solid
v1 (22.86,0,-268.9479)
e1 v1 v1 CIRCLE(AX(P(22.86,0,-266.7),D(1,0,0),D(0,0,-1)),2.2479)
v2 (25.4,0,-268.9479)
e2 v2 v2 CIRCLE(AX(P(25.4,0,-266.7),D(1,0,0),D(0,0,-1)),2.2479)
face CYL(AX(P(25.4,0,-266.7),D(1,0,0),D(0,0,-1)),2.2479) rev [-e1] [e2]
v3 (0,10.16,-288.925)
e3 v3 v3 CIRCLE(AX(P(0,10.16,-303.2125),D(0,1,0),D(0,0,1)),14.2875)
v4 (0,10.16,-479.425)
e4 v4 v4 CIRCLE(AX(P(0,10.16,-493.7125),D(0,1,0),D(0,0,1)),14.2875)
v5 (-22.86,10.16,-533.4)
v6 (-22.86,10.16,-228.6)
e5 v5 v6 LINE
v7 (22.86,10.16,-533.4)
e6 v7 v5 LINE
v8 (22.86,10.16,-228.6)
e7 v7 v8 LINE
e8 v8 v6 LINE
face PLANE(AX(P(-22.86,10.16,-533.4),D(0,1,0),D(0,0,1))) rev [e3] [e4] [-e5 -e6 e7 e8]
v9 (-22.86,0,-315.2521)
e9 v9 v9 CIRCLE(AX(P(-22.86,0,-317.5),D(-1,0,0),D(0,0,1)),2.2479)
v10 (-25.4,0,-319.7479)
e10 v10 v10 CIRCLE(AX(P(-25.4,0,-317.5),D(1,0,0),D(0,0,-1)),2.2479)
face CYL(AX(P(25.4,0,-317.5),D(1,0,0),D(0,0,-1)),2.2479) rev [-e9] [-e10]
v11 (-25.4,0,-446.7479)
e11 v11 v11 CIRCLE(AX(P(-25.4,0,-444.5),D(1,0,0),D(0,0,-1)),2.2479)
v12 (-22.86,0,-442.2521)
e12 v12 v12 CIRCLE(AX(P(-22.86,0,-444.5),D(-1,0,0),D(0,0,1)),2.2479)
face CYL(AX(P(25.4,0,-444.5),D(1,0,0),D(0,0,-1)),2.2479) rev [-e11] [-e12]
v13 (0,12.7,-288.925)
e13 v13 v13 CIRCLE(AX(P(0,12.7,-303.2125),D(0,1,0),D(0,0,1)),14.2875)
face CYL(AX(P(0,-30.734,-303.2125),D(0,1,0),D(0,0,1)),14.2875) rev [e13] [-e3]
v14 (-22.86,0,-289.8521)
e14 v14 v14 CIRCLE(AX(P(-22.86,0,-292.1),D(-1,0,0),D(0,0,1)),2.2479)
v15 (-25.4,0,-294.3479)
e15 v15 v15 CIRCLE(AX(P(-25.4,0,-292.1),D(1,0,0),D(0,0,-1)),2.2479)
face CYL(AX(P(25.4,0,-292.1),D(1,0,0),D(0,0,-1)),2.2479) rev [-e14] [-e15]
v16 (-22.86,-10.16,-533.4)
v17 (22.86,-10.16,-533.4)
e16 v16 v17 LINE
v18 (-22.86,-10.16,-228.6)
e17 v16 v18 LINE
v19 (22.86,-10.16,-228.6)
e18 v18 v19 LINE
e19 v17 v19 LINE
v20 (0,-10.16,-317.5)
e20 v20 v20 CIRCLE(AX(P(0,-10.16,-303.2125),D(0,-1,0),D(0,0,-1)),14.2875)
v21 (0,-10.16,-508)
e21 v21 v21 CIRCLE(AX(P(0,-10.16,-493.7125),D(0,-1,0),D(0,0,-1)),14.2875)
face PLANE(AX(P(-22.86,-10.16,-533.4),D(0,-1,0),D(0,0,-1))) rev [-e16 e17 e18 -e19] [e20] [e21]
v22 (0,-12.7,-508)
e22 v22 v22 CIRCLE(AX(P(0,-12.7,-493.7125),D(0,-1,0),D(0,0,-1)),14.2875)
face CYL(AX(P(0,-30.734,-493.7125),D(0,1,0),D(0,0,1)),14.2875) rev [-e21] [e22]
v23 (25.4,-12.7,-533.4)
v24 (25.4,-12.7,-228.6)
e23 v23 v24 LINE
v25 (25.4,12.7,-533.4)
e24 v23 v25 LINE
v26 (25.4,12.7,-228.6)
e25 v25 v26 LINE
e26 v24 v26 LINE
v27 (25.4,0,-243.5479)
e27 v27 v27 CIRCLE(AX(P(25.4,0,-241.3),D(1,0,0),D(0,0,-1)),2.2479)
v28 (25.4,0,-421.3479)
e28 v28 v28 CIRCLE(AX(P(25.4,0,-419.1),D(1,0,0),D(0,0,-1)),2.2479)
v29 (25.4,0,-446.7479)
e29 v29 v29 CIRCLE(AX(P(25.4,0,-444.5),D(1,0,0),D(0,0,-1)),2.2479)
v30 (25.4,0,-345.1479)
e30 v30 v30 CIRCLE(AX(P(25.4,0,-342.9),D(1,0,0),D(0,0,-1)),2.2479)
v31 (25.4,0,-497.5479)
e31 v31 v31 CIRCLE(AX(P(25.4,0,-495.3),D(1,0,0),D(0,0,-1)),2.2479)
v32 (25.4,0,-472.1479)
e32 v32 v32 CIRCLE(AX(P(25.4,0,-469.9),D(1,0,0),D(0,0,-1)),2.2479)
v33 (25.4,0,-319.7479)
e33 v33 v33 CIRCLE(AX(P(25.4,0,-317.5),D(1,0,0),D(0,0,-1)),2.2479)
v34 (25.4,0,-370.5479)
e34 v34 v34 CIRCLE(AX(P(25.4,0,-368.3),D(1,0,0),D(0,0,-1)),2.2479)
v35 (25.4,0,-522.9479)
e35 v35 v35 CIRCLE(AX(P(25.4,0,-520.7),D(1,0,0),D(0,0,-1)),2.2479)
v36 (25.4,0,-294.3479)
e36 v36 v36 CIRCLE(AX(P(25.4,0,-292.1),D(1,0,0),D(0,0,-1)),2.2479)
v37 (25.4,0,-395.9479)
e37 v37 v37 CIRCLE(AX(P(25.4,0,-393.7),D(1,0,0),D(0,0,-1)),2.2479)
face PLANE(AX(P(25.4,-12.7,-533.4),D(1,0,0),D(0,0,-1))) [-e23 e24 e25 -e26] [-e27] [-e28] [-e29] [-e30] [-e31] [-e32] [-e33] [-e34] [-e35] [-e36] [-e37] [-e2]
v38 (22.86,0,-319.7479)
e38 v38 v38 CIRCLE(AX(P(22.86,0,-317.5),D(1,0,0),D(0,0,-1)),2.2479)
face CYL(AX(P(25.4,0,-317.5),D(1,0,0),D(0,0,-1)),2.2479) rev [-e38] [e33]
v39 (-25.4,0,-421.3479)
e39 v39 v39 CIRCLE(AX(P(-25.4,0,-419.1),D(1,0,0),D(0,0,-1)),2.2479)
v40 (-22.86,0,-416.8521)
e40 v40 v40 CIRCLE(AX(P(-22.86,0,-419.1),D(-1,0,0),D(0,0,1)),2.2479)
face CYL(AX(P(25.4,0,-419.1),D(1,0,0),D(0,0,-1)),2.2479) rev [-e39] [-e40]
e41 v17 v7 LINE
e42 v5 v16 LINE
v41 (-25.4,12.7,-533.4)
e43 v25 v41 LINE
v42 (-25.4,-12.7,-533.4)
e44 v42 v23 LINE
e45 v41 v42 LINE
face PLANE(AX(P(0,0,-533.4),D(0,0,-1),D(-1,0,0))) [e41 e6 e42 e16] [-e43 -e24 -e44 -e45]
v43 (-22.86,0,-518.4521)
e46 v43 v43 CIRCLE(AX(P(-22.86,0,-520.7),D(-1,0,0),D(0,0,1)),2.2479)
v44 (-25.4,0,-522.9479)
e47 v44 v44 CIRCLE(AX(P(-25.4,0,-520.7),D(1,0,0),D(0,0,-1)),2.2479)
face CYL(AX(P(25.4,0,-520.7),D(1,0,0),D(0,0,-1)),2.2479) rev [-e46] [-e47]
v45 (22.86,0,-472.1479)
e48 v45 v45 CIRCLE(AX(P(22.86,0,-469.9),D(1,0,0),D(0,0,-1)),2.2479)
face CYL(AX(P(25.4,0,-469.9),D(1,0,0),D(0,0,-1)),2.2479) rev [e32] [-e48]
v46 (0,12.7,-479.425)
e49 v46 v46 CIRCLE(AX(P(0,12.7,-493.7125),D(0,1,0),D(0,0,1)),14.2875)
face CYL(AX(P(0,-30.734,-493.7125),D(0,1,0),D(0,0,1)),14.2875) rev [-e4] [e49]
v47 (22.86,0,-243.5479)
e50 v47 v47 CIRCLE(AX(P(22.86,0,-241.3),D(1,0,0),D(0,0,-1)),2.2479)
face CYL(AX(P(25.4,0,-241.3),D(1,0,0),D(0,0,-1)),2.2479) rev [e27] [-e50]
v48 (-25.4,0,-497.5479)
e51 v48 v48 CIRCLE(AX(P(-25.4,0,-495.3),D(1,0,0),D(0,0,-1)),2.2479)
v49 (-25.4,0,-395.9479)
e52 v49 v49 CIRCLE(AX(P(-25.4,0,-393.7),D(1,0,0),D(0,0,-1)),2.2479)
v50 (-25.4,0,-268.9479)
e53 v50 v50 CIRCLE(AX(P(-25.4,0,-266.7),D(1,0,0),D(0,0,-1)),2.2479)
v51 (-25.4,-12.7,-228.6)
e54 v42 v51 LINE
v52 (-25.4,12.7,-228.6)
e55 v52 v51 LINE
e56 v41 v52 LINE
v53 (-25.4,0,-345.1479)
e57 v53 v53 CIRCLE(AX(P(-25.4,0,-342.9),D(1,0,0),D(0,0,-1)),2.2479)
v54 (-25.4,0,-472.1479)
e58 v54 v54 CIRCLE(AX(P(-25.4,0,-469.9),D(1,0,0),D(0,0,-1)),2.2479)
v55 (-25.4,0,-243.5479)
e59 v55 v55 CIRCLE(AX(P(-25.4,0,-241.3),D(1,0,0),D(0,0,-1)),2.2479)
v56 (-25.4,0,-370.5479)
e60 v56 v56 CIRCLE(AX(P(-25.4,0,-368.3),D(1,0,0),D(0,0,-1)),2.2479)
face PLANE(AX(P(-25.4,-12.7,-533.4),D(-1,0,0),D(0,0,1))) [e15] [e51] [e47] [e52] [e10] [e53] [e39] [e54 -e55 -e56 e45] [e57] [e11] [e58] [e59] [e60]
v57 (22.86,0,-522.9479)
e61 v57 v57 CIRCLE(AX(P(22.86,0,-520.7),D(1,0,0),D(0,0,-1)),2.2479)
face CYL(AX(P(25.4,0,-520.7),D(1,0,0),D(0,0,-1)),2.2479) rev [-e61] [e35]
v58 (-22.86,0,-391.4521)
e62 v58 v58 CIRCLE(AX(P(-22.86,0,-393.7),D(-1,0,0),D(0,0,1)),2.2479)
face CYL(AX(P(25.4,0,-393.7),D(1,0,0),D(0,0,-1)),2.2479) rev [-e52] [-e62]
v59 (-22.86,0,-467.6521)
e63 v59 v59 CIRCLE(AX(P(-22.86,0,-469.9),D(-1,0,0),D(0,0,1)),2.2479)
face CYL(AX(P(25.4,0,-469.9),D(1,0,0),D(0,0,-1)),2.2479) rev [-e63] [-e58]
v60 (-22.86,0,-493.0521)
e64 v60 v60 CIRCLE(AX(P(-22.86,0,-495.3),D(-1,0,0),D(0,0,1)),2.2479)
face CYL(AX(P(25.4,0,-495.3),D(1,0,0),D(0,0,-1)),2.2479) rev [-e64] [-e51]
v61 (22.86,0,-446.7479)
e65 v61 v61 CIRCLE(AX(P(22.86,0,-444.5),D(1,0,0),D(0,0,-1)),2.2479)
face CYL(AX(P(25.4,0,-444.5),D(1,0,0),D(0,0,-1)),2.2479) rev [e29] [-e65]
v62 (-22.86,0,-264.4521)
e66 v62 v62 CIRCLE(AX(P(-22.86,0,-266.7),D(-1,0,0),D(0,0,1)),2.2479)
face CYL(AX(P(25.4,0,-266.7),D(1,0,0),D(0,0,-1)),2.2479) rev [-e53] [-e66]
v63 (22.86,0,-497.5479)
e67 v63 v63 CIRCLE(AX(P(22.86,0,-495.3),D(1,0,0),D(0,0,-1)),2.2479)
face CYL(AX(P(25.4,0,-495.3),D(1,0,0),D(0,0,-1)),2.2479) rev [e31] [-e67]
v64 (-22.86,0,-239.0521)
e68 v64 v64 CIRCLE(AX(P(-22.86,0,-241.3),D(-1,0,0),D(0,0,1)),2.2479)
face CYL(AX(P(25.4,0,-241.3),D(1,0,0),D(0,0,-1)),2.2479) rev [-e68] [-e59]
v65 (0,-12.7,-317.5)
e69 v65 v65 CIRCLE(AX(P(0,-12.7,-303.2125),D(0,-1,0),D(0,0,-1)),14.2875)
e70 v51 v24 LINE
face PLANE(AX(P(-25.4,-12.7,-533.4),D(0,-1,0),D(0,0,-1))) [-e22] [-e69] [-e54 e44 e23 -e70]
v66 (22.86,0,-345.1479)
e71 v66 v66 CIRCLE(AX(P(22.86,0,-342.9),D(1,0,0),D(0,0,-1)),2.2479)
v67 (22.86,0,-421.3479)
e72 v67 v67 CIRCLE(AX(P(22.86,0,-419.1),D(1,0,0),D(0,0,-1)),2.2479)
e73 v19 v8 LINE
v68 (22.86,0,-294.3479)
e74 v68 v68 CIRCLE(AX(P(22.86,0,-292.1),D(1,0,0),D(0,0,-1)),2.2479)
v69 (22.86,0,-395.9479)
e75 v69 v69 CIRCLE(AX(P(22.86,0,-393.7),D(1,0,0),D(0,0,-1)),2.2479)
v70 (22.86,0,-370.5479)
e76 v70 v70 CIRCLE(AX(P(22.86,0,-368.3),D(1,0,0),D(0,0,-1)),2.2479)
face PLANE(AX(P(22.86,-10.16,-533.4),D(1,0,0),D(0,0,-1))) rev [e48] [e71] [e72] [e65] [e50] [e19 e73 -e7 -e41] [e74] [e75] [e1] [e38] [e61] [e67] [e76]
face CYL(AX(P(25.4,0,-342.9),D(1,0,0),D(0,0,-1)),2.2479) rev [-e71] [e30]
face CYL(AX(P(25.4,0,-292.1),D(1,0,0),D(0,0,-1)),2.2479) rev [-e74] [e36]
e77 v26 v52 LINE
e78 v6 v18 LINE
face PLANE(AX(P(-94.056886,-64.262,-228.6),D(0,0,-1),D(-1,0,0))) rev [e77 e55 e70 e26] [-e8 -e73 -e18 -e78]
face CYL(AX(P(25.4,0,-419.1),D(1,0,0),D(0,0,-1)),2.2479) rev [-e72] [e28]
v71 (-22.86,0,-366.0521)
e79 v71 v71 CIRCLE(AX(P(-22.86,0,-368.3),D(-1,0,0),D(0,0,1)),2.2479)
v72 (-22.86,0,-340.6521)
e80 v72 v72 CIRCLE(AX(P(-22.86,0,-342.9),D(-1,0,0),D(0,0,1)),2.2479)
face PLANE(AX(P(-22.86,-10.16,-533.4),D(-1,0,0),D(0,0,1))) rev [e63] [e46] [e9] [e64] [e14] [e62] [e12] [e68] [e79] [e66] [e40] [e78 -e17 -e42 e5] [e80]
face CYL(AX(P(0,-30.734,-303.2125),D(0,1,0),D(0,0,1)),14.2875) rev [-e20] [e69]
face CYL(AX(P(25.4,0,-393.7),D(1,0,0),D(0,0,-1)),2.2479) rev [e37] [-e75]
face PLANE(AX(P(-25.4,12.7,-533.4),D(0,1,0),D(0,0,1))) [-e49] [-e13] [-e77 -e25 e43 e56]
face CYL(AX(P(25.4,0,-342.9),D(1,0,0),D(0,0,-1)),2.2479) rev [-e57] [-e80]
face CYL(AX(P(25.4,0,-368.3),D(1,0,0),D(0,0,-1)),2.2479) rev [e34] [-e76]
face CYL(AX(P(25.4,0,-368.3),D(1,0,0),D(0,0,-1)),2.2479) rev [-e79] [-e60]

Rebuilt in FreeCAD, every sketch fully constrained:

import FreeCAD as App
import Part
import Sketcher
from FreeCAD import Vector
Q = App.Units.Quantity

doc = App.newDocument("Part")
body = doc.addObject("PartDesign::Body", "Body")

# Sketch on XY plane
sketch1 = body.newObject("Sketcher::SketchObject", "Sketch")
sketch1.AttachmentSupport = (doc.getObject("XY_Plane"), [""])
sketch1.MapMode = "FlatFace"
sketch1.addGeometry([
    Part.LineSegment(Vector(-25, 13, 0), Vector(-25, -13, 0)),  # 0
    Part.LineSegment(Vector(-25, -13, 0), Vector(25, -13, 0)),  # 1
    Part.LineSegment(Vector(25, -13, 0), Vector(25, 13, 0)),  # 2
    Part.LineSegment(Vector(25, 13, 0), Vector(-25, 13, 0)),  # 3
    Part.LineSegment(Vector(23, -10, 0), Vector(-23, -10, 0)),  # 4
    Part.LineSegment(Vector(-23, -10, 0), Vector(-23, 10, 0)),  # 5
    Part.LineSegment(Vector(-23, 10, 0), Vector(23, 10, 0)),  # 6
    Part.LineSegment(Vector(23, 10, 0), Vector(23, -10, 0)),  # 7
], False)
sketch1.addConstraint([
    Sketcher.Constraint("Coincident", 0, 2, 1, 1),
    Sketcher.Constraint("Coincident", 1, 2, 2, 1),
    Sketcher.Constraint("Coincident", 2, 2, 3, 1),
    Sketcher.Constraint("Coincident", 3, 2, 0, 1),
    Sketcher.Constraint("Coincident", 4, 2, 5, 1),
    Sketcher.Constraint("Coincident", 5, 2, 6, 1),
    Sketcher.Constraint("Coincident", 6, 2, 7, 1),
    Sketcher.Constraint("Coincident", 7, 2, 4, 1),
    Sketcher.Constraint("Vertical", 0),
    Sketcher.Constraint("Horizontal", 1),
    Sketcher.Constraint("Vertical", 2),
    Sketcher.Constraint("Horizontal", 3),
    Sketcher.Constraint("Horizontal", 4),
    Sketcher.Constraint("Vertical", 5),
    Sketcher.Constraint("Horizontal", 6),
    Sketcher.Constraint("Vertical", 7),
    Sketcher.Constraint("Symmetric", 0, 2, 2, 2, -1, 1),
    Sketcher.Constraint("Symmetric", 4, 2, 6, 2, -1, 1),
    Sketcher.Constraint("DistanceX", 1, 1, 1, 2, Q("2 in")),
    Sketcher.Constraint("DistanceY", 0, 2, 0, 1, Q("1 in")),
    Sketcher.Constraint("DistanceX", 4, 2, 4, 1, Q("1.8 in")),
    Sketcher.Constraint("DistanceY", 5, 1, 5, 2, Q("0.8 in")),
])
pad1 = body.newObject("PartDesign::Pad", "Pad")
pad1.Profile = sketch1
pad1.Length = Q("21 in")
pad1.Reversed = True

# Sketch on YZ plane
sketch2 = body.newObject("Sketcher::SketchObject", "Sketch001")
sketch2.AttachmentSupport = (doc.getObject("YZ_Plane"), [""])
sketch2.MapMode = "FlatFace"
sketch2.AttachmentOffset = App.Placement(Vector(0, 0, 1 * 25.4), App.Rotation())
sketch2.addGeometry([
    Part.Circle(Vector(0, -12.7, 0), Vector(0, 0, 1), 2.2),  # 0
    Part.Circle(Vector(0, -38.1, 0), Vector(0, 0, 1), 2.2),  # 1
    Part.Circle(Vector(0, -63.5, 0), Vector(0, 0, 1), 2.2),  # 2
    Part.Circle(Vector(0, -88.9, 0), Vector(0, 0, 1), 2.2),  # 3
    Part.Circle(Vector(0, -114.3, 0), Vector(0, 0, 1), 2.2),  # 4
    Part.Circle(Vector(0, -139.7, 0), Vector(0, 0, 1), 2.2),  # 5
    Part.Circle(Vector(0, -165.1, 0), Vector(0, 0, 1), 2.2),  # 6
    Part.Circle(Vector(0, -190.5, 0), Vector(0, 0, 1), 2.2),  # 7
    Part.Circle(Vector(0, -215.9, 0), Vector(0, 0, 1), 2.2),  # 8
    Part.Circle(Vector(0, -241.3, 0), Vector(0, 0, 1), 2.2),  # 9
    Part.Circle(Vector(0, -266.7, 0), Vector(0, 0, 1), 2.2),  # 10
    Part.Circle(Vector(0, -292.1, 0), Vector(0, 0, 1), 2.2),  # 11
    Part.Circle(Vector(0, -317.5, 0), Vector(0, 0, 1), 2.2),  # 12
    Part.Circle(Vector(0, -342.9, 0), Vector(0, 0, 1), 2.2),  # 13
    Part.Circle(Vector(0, -368.3, 0), Vector(0, 0, 1), 2.2),  # 14
    Part.Circle(Vector(0, -393.7, 0), Vector(0, 0, 1), 2.2),  # 15
    Part.Circle(Vector(0, -419.1, 0), Vector(0, 0, 1), 2.2),  # 16
    Part.Circle(Vector(0, -444.5, 0), Vector(0, 0, 1), 2.2),  # 17
    Part.Circle(Vector(0, -469.9, 0), Vector(0, 0, 1), 2.2),  # 18
    Part.Circle(Vector(0, -495.3, 0), Vector(0, 0, 1), 2.2),  # 19
    Part.Circle(Vector(0, -520.7, 0), Vector(0, 0, 1), 2.2),  # 20
], False)
sketch2.addConstraint([
    Sketcher.Constraint("Equal", 0, 1),
    Sketcher.Constraint("Equal", 1, 2),
    Sketcher.Constraint("Equal", 2, 3),
    Sketcher.Constraint("Equal", 3, 4),
    Sketcher.Constraint("Equal", 4, 5),
    Sketcher.Constraint("Equal", 5, 6),
    Sketcher.Constraint("Equal", 6, 7),
    Sketcher.Constraint("Equal", 7, 8),
    Sketcher.Constraint("Equal", 8, 9),
    Sketcher.Constraint("Equal", 9, 10),
    Sketcher.Constraint("Equal", 10, 11),
    Sketcher.Constraint("Equal", 11, 12),
    Sketcher.Constraint("Equal", 12, 13),
    Sketcher.Constraint("Equal", 13, 14),
    Sketcher.Constraint("Equal", 14, 15),
    Sketcher.Constraint("Equal", 15, 16),
    Sketcher.Constraint("Equal", 16, 17),
    Sketcher.Constraint("Equal", 17, 18),
    Sketcher.Constraint("Equal", 18, 19),
    Sketcher.Constraint("Equal", 19, 20),
    Sketcher.Constraint("PointOnObject", 0, 3, -2),
    Sketcher.Constraint("PointOnObject", 1, 3, -2),
    Sketcher.Constraint("PointOnObject", 2, 3, -2),
    Sketcher.Constraint("PointOnObject", 3, 3, -2),
    Sketcher.Constraint("PointOnObject", 4, 3, -2),
    Sketcher.Constraint("PointOnObject", 5, 3, -2),
    Sketcher.Constraint("PointOnObject", 6, 3, -2),
    Sketcher.Constraint("PointOnObject", 7, 3, -2),
    Sketcher.Constraint("PointOnObject", 8, 3, -2),
    Sketcher.Constraint("PointOnObject", 9, 3, -2),
    Sketcher.Constraint("PointOnObject", 10, 3, -2),
    Sketcher.Constraint("PointOnObject", 11, 3, -2),
    Sketcher.Constraint("PointOnObject", 12, 3, -2),
    Sketcher.Constraint("PointOnObject", 13, 3, -2),
    Sketcher.Constraint("PointOnObject", 14, 3, -2),
    Sketcher.Constraint("PointOnObject", 15, 3, -2),
    Sketcher.Constraint("PointOnObject", 16, 3, -2),
    Sketcher.Constraint("PointOnObject", 17, 3, -2),
    Sketcher.Constraint("PointOnObject", 18, 3, -2),
    Sketcher.Constraint("PointOnObject", 19, 3, -2),
    Sketcher.Constraint("PointOnObject", 20, 3, -2),
    Sketcher.Constraint("Diameter", 0, Q("0.177 in")),
    Sketcher.Constraint("DistanceY", 1, 3, 0, 3, Q("1 in")),
    Sketcher.Constraint("DistanceY", 2, 3, 1, 3, Q("1 in")),
    Sketcher.Constraint("DistanceY", 3, 3, 2, 3, Q("1 in")),
    Sketcher.Constraint("DistanceY", 4, 3, 3, 3, Q("1 in")),
    Sketcher.Constraint("DistanceY", 5, 3, 4, 3, Q("1 in")),
    Sketcher.Constraint("DistanceY", 6, 3, 5, 3, Q("1 in")),
    Sketcher.Constraint("DistanceY", 7, 3, 6, 3, Q("1 in")),
    Sketcher.Constraint("DistanceY", 8, 3, 7, 3, Q("1 in")),
    Sketcher.Constraint("DistanceY", 9, 3, 8, 3, Q("1 in")),
    Sketcher.Constraint("DistanceY", 10, 3, 9, 3, Q("1 in")),
    Sketcher.Constraint("DistanceY", 11, 3, 10, 3, Q("1 in")),
    Sketcher.Constraint("DistanceY", 12, 3, 11, 3, Q("1 in")),
    Sketcher.Constraint("DistanceY", 13, 3, 12, 3, Q("1 in")),
    Sketcher.Constraint("DistanceY", 14, 3, 13, 3, Q("1 in")),
    Sketcher.Constraint("DistanceY", 15, 3, 14, 3, Q("1 in")),
    Sketcher.Constraint("DistanceY", 16, 3, 15, 3, Q("1 in")),
    Sketcher.Constraint("DistanceY", 17, 3, 16, 3, Q("1 in")),
    Sketcher.Constraint("DistanceY", 18, 3, 17, 3, Q("1 in")),
    Sketcher.Constraint("DistanceY", 19, 3, 18, 3, Q("1 in")),
    Sketcher.Constraint("DistanceY", 20, 3, 19, 3, Q("1 in")),
    Sketcher.Constraint("DistanceY", 0, 3, -1, 1, Q("0.5 in")),
])
doc.recompute()
hole = body.newObject("PartDesign::Hole", "Hole")
hole.Profile = sketch2
hole.ThreadType = "None"
hole.Diameter = Q("0.177 in")
hole.DepthType = "ThroughAll"

# Sketch on XZ plane
sketch3 = body.newObject("Sketcher::SketchObject", "Sketch002")
sketch3.AttachmentSupport = (doc.getObject("XZ_Plane"), [""])
sketch3.MapMode = "FlatFace"
sketch3.AttachmentOffset = App.Placement(Vector(0, 0, -0.5 * 25.4), App.Rotation())
sketch3.addGeometry([
    Part.LineSegment(Vector(136, -229, 0), Vector(-94, -229, 0)),
    Part.LineSegment(Vector(-94, -229, 0), Vector(-94, 18, 0)),
    Part.LineSegment(Vector(-94, 18, 0), Vector(136, 18, 0)),
    Part.LineSegment(Vector(136, 18, 0), Vector(136, -229, 0)),
], False)
sketch3.addConstraint([
    Sketcher.Constraint("Coincident", 0, 2, 1, 1),
    Sketcher.Constraint("Coincident", 1, 2, 2, 1),
    Sketcher.Constraint("Coincident", 2, 2, 3, 1),
    Sketcher.Constraint("Coincident", 3, 2, 0, 1),
    Sketcher.Constraint("Horizontal", 0),
    Sketcher.Constraint("Vertical", 1),
    Sketcher.Constraint("Horizontal", 2),
    Sketcher.Constraint("Vertical", 3),
    Sketcher.Constraint("DistanceY", 0, 2, -1, 1, Q("9 in")),
    Sketcher.Constraint("DistanceY", 1, 1, 1, 2, 246.24137),
    Sketcher.Constraint("DistanceX", 0, 2, 0, 1, 229.569967),
    Sketcher.Constraint("DistanceX", -1, 1, 2, 2, 135.513081),
])
pocket1 = body.newObject("PartDesign::Pocket", "Pocket")
pocket1.Profile = sketch3
pocket1.Length = Q("3.03 in")
pocket1.Reversed = True

# Sketch on XZ plane
sketch4 = body.newObject("Sketcher::SketchObject", "Sketch003")
sketch4.AttachmentSupport = (doc.getObject("XZ_Plane"), [""])
sketch4.MapMode = "FlatFace"
sketch4.AttachmentOffset = App.Placement(Vector(0, 0, -0.5 * 25.4), App.Rotation())
sketch4.addGeometry([
    Part.Circle(Vector(0, -494, 0), Vector(0, 0, 1), 14),
    Part.Circle(Vector(0, -303, 0), Vector(0, 0, 1), 14),
], False)
sketch4.addConstraint([
    Sketcher.Constraint("Equal", 0, 1),
    Sketcher.Constraint("PointOnObject", 0, 3, -2),
    Sketcher.Constraint("PointOnObject", 1, 3, -2),
    Sketcher.Constraint("Diameter", 0, Q("1.125 in")),
    Sketcher.Constraint("DistanceY", 0, 3, 1, 3, Q("7.5 in")),
    Sketcher.Constraint("DistanceY", 0, 3, -1, 1, Q("19.4375 in")),
])
pocket2 = body.newObject("PartDesign::Pocket", "Pocket001")
pocket2.Profile = sketch4
pocket2.Length = Q("1.71 in")
pocket2.Reversed = True

doc.recompute()
